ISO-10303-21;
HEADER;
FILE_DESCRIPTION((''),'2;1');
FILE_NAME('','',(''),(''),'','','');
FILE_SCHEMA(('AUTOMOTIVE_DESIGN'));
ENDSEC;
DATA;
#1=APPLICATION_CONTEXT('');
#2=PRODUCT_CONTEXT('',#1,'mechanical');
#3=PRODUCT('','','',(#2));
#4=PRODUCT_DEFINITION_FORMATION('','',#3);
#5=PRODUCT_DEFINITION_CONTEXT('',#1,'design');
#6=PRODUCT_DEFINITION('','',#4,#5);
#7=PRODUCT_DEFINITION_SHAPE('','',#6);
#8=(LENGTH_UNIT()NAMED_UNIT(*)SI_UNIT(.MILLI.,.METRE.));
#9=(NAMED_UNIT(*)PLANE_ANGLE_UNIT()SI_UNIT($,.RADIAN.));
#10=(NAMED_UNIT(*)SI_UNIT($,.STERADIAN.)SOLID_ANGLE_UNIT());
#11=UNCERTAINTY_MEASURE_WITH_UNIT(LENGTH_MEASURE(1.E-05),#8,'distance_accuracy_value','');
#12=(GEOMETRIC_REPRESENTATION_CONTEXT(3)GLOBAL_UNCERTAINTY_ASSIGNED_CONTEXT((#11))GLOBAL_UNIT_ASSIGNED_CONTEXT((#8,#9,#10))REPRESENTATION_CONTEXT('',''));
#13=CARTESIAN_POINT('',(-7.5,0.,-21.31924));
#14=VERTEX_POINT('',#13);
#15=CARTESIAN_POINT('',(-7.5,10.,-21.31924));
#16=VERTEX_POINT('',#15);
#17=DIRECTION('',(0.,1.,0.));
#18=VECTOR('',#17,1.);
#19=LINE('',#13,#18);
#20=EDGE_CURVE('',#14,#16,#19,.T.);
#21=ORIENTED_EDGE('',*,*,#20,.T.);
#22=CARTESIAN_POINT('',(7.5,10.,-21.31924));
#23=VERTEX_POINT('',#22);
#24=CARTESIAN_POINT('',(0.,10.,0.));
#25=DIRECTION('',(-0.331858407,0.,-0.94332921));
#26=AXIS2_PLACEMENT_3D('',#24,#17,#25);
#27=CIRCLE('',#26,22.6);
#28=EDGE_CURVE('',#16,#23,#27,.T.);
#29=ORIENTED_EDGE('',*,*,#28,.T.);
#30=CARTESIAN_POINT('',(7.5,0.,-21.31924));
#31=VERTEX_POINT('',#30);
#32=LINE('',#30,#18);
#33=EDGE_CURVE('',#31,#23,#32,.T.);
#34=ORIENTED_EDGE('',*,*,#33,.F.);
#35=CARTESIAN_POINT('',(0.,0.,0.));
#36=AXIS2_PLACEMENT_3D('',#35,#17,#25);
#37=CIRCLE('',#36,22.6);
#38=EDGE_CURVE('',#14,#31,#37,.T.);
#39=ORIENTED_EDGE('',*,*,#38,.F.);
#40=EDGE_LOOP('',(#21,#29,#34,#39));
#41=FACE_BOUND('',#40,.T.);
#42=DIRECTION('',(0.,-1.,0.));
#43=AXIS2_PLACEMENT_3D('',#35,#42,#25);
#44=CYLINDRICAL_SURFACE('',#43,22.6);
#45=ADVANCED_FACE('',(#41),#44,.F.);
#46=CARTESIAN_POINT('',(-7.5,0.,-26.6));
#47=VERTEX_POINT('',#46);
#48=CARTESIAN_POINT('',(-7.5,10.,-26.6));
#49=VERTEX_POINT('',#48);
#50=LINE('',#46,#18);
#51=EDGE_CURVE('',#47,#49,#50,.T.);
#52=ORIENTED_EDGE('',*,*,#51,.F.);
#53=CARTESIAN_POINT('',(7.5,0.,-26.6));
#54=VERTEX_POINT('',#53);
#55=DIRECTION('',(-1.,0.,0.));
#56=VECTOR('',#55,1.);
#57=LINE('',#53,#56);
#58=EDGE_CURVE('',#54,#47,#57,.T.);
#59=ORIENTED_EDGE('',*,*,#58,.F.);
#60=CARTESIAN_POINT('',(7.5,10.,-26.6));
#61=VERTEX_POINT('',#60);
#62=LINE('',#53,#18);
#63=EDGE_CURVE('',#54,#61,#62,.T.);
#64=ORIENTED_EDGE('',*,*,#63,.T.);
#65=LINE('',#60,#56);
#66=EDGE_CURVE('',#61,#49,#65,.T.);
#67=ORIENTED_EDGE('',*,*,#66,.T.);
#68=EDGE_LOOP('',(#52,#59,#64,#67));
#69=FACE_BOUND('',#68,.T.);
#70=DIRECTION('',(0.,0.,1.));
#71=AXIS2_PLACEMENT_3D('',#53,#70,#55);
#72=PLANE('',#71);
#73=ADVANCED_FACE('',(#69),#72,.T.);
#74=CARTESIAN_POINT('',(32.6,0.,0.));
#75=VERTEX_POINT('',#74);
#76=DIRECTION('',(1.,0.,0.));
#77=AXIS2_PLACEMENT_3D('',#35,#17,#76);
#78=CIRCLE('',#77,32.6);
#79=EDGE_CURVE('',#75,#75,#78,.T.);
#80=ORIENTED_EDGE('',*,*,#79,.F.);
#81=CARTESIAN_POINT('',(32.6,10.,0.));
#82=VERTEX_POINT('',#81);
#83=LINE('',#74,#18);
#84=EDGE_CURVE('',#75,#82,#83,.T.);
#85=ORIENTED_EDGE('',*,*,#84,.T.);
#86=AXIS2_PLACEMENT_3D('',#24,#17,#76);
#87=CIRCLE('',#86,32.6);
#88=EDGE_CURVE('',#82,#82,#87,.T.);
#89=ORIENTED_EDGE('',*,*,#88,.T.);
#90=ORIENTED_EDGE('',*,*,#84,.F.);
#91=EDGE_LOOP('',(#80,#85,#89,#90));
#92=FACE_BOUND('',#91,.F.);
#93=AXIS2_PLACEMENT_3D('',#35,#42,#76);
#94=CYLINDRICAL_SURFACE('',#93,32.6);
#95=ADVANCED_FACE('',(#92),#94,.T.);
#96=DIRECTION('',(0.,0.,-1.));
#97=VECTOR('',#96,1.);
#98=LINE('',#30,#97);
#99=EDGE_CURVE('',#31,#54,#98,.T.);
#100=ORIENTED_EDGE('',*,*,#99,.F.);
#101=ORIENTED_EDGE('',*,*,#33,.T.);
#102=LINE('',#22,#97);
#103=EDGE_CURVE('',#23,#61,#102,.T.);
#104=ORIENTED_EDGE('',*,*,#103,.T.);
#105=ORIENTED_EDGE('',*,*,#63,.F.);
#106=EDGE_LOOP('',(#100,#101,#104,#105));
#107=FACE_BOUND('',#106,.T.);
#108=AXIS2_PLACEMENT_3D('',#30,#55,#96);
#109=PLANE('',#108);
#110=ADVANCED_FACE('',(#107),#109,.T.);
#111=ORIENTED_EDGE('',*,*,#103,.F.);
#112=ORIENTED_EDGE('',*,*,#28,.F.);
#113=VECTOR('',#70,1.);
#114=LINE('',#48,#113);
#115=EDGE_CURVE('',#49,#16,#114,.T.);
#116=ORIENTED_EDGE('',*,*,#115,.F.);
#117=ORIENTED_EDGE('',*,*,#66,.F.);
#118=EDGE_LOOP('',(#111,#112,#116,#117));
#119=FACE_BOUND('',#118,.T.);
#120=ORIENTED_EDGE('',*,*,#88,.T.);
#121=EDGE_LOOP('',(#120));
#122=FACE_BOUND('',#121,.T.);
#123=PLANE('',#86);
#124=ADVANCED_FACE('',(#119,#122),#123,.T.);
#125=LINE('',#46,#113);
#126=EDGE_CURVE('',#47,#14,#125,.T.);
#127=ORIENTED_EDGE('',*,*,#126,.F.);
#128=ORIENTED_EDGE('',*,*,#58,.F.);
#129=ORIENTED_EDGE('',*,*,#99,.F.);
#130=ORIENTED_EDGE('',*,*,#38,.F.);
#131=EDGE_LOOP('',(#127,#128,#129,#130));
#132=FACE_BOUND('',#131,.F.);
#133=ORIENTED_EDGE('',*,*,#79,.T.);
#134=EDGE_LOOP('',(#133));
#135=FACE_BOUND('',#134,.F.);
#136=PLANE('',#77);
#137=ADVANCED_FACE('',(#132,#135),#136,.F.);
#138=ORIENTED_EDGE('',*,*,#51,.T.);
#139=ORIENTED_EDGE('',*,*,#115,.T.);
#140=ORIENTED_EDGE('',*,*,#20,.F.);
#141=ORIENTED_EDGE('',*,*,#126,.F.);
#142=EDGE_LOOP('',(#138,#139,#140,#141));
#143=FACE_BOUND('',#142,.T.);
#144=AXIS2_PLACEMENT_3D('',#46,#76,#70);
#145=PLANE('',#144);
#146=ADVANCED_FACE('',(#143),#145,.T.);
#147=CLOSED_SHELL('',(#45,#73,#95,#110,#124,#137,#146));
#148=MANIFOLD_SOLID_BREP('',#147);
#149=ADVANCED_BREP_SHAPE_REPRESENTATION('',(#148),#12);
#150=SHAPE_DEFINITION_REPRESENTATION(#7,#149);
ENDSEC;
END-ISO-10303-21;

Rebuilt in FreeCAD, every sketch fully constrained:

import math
import FreeCAD as App
import Part
import Sketcher
Q = App.Units.Quantity

doc = App.newDocument("Part")
body = doc.addObject("PartDesign::Body", "Body")

sketch1 = doc.addObject("Sketcher::SketchObject", "Sketch")
body.addObject(sketch1)
sketch1.AttachmentSupport = (doc.XZ_Plane, [""])
sketch1.MapMode = "FlatFace"
sketch1.addGeometry([
    Part.Circle(App.Vector(0, 0, 0), App.Vector(0, 0, 1), 32.6),
    Part.LineSegment(App.Vector(-7.5, -21.31924, 0), App.Vector(-7.5, -26.6, 0)),
    Part.LineSegment(App.Vector(-7.5, -26.6, 0), App.Vector(7.5, -26.6, 0)),
    Part.LineSegment(App.Vector(7.5, -26.6, 0), App.Vector(7.5, -21.31924, 0)),
    Part.ArcOfCircle(Part.Circle(App.Vector(0, 0, 0), App.Vector(0, 0, 1), 22.6), math.radians(-70.618388), math.radians(250.618388)),
], False)
sketch1.addConstraint([
    Sketcher.Constraint("Coincident", 1, 2, 2, 1),
    Sketcher.Constraint("Coincident", 2, 2, 3, 1),
    Sketcher.Constraint("Coincident", 3, 2, 4, 1),
    Sketcher.Constraint("Coincident", 4, 2, 1, 1),
    Sketcher.Constraint("Vertical", 1),
    Sketcher.Constraint("Horizontal", 2),
    Sketcher.Constraint("Vertical", 3),
    Sketcher.Constraint("Coincident", 0, 3, -1, 1),
    Sketcher.Constraint("Coincident", 4, 3, -1, 1),
    Sketcher.Constraint("Horizontal", 3, 2, 4, 2),
    Sketcher.Constraint("Diameter", 0, Q("65.2 mm")),
    Sketcher.Constraint("Radius", 4, Q("22.6 mm")),
    Sketcher.Constraint("DistanceX", 2, 1, 2, 2, Q("15 mm")),
    Sketcher.Constraint("DistanceY", 1, 2, -1, 1, Q("26.6 mm")),
])
pad1 = doc.addObject("PartDesign::Pad", "Pad")
body.addObject(pad1)
pad1.Profile = sketch1
pad1.Length = 10
pad1.Reversed = True

doc.recompute()
